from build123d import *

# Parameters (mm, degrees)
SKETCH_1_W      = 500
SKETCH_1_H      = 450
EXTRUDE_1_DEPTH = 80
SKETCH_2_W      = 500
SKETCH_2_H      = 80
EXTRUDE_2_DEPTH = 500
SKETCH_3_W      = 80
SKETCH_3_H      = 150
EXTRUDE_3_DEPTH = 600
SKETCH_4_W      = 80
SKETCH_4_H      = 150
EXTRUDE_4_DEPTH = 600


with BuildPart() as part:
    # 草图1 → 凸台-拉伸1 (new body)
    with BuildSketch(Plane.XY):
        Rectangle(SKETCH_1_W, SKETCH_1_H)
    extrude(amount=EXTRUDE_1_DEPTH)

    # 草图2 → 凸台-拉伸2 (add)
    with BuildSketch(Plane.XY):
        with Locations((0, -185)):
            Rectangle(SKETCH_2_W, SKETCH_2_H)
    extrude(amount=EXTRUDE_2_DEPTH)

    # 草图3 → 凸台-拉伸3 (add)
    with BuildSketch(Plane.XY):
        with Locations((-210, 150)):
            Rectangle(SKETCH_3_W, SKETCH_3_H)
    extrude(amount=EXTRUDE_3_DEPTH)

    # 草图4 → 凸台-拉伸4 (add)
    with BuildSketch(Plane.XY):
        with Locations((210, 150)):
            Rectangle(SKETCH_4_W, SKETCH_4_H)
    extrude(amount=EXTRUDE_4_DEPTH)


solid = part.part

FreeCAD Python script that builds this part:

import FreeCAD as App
import Part
import Sketcher
Q = App.Units.Quantity

doc = App.newDocument("Part")
body = doc.addObject("PartDesign::Body", "Body")

# Sketch on XY plane
sketch1 = body.newObject("Sketcher::SketchObject", "Sketch")
sketch1.AttachmentSupport = (doc.getObject("XY_Plane"), [""])
sketch1.MapMode = "FlatFace"
sketch1.addGeometry([
    Part.LineSegment(App.Vector(-250, 225, 0), App.Vector(-250, -225, 0)),
    Part.LineSegment(App.Vector(-250, -225, 0), App.Vector(250, -225, 0)),
    Part.LineSegment(App.Vector(250, -225, 0), App.Vector(250, 225, 0)),
    Part.LineSegment(App.Vector(250, 225, 0), App.Vector(-250, 225, 0)),
], False)
sketch1.addConstraint([
    Sketcher.Constraint("Coincident", 0, 2, 1, 1),
    Sketcher.Constraint("Coincident", 1, 2, 2, 1),
    Sketcher.Constraint("Coincident", 2, 2, 3, 1),
    Sketcher.Constraint("Coincident", 3, 2, 0, 1),
    Sketcher.Constraint("Vertical", 0),
    Sketcher.Constraint("Horizontal", 1),
    Sketcher.Constraint("Vertical", 2),
    Sketcher.Constraint("Horizontal", 3),
    Sketcher.Constraint("Symmetric", 0, 2, 2, 2, -1, 1),
    Sketcher.Constraint("DistanceX", 1, 1, 1, 2, Q("500 mm")),
    Sketcher.Constraint("DistanceY", 0, 2, 0, 1, Q("450 mm")),
])
pad1 = body.newObject("PartDesign::Pad", "Pad")
pad1.Profile = sketch1
pad1.Length = 80

# Sketch on XY plane
sketch2 = body.newObject("Sketcher::SketchObject", "Sketch001")
sketch2.AttachmentSupport = (doc.getObject("XY_Plane"), [""])
sketch2.MapMode = "FlatFace"
sketch2.addGeometry([
    Part.LineSegment(App.Vector(-250, -145, 0), App.Vector(-250, -225, 0)),
    Part.LineSegment(App.Vector(-250, -225, 0), App.Vector(250, -225, 0)),
    Part.LineSegment(App.Vector(250, -225, 0), App.Vector(250, -145, 0)),
    Part.LineSegment(App.Vector(250, -145, 0), App.Vector(-250, -145, 0)),
], False)
sketch2.addConstraint([
    Sketcher.Constraint("Coincident", 0, 2, 1, 1),
    Sketcher.Constraint("Coincident", 1, 2, 2, 1),
    Sketcher.Constraint("Coincident", 2, 2, 3, 1),
    Sketcher.Constraint("Coincident", 3, 2, 0, 1),
    Sketcher.Constraint("Vertical", 0),
    Sketcher.Constraint("Horizontal", 1),
    Sketcher.Constraint("Vertical", 2),
    Sketcher.Constraint("Horizontal", 3),
    Sketcher.Constraint("DistanceX", 1, 1, 1, 2, Q("500 mm")),
    Sketcher.Constraint("DistanceY", 0, 2, 0, 1, Q("80 mm")),
    Sketcher.Constraint("DistanceX", 0, 2, -1, 1, Q("250 mm")),
    Sketcher.Constraint("DistanceY", 0, 2, -1, 1, Q("225 mm")),
])
pad2 = body.newObject("PartDesign::Pad", "Pad001")
pad2.Profile = sketch2
pad2.Length = 500

# Sketch on XY plane
sketch3 = body.newObject("Sketcher::SketchObject", "Sketch002")
sketch3.AttachmentSupport = (doc.getObject("XY_Plane"), [""])
sketch3.MapMode = "FlatFace"
sketch3.addGeometry([
    Part.LineSegment(App.Vector(-250, 225, 0), App.Vector(-250, 75, 0)),
    Part.LineSegment(App.Vector(-250, 75, 0), App.Vector(-170, 75, 0)),
    Part.LineSegment(App.Vector(-170, 75, 0), App.Vector(-170, 225, 0)),
    Part.LineSegment(App.Vector(-170, 225, 0), App.Vector(-250, 225, 0)),
], False)
sketch3.addConstraint([
    Sketcher.Constraint("Coincident", 0, 2, 1, 1),
    Sketcher.Constraint("Coincident", 1, 2, 2, 1),
    Sketcher.Constraint("Coincident", 2, 2, 3, 1),
    Sketcher.Constraint("Coincident", 3, 2, 0, 1),
    Sketcher.Constraint("Vertical", 0),
    Sketcher.Constraint("Horizontal", 1),
    Sketcher.Constraint("Vertical", 2),
    Sketcher.Constraint("Horizontal", 3),
    Sketcher.Constraint("DistanceX", 1, 1, 1, 2, Q("80 mm")),
    Sketcher.Constraint("DistanceY", 0, 2, 0, 1, Q("150 mm")),
    Sketcher.Constraint("DistanceX", 0, 2, -1, 1, Q("250 mm")),
    Sketcher.Constraint("DistanceY", -1, 1, 0, 2, Q("75 mm")),
])
pad3 = body.newObject("PartDesign::Pad", "Pad002")
pad3.Profile = sketch3
pad3.Length = 600

# Sketch on XY plane
sketch4 = body.newObject("Sketcher::SketchObject", "Sketch003")
sketch4.AttachmentSupport = (doc.getObject("XY_Plane"), [""])
sketch4.MapMode = "FlatFace"
sketch4.addGeometry([
    Part.LineSegment(App.Vector(170, 225, 0), App.Vector(170, 75, 0)),
    Part.LineSegment(App.Vector(170, 75, 0), App.Vector(250, 75, 0)),
    Part.LineSegment(App.Vector(250, 75, 0), App.Vector(250, 225, 0)),
    Part.LineSegment(App.Vector(250, 225, 0), App.Vector(170, 225, 0)),
], False)
sketch4.addConstraint([
    Sketcher.Constraint("Coincident", 0, 2, 1, 1),
    Sketcher.Constraint("Coincident", 1, 2, 2, 1),
    Sketcher.Constraint("Coincident", 2, 2, 3, 1),
    Sketcher.Constraint("Coincident", 3, 2, 0, 1),
    Sketcher.Constraint("Vertical", 0),
    Sketcher.Constraint("Horizontal", 1),
    Sketcher.Constraint("Vertical", 2),
    Sketcher.Constraint("Horizontal", 3),
    Sketcher.Constraint("DistanceX", 1, 1, 1, 2, Q("80 mm")),
    Sketcher.Constraint("DistanceY", 0, 2, 0, 1, Q("150 mm")),
    Sketcher.Constraint("DistanceX", -1, 1, 0, 2, Q("170 mm")),
    Sketcher.Constraint("DistanceY", -1, 1, 0, 2, Q("75 mm")),
])
pad4 = body.newObject("PartDesign::Pad", "Pad003")
pad4.Profile = sketch4
pad4.Length = 600

doc.recompute()
